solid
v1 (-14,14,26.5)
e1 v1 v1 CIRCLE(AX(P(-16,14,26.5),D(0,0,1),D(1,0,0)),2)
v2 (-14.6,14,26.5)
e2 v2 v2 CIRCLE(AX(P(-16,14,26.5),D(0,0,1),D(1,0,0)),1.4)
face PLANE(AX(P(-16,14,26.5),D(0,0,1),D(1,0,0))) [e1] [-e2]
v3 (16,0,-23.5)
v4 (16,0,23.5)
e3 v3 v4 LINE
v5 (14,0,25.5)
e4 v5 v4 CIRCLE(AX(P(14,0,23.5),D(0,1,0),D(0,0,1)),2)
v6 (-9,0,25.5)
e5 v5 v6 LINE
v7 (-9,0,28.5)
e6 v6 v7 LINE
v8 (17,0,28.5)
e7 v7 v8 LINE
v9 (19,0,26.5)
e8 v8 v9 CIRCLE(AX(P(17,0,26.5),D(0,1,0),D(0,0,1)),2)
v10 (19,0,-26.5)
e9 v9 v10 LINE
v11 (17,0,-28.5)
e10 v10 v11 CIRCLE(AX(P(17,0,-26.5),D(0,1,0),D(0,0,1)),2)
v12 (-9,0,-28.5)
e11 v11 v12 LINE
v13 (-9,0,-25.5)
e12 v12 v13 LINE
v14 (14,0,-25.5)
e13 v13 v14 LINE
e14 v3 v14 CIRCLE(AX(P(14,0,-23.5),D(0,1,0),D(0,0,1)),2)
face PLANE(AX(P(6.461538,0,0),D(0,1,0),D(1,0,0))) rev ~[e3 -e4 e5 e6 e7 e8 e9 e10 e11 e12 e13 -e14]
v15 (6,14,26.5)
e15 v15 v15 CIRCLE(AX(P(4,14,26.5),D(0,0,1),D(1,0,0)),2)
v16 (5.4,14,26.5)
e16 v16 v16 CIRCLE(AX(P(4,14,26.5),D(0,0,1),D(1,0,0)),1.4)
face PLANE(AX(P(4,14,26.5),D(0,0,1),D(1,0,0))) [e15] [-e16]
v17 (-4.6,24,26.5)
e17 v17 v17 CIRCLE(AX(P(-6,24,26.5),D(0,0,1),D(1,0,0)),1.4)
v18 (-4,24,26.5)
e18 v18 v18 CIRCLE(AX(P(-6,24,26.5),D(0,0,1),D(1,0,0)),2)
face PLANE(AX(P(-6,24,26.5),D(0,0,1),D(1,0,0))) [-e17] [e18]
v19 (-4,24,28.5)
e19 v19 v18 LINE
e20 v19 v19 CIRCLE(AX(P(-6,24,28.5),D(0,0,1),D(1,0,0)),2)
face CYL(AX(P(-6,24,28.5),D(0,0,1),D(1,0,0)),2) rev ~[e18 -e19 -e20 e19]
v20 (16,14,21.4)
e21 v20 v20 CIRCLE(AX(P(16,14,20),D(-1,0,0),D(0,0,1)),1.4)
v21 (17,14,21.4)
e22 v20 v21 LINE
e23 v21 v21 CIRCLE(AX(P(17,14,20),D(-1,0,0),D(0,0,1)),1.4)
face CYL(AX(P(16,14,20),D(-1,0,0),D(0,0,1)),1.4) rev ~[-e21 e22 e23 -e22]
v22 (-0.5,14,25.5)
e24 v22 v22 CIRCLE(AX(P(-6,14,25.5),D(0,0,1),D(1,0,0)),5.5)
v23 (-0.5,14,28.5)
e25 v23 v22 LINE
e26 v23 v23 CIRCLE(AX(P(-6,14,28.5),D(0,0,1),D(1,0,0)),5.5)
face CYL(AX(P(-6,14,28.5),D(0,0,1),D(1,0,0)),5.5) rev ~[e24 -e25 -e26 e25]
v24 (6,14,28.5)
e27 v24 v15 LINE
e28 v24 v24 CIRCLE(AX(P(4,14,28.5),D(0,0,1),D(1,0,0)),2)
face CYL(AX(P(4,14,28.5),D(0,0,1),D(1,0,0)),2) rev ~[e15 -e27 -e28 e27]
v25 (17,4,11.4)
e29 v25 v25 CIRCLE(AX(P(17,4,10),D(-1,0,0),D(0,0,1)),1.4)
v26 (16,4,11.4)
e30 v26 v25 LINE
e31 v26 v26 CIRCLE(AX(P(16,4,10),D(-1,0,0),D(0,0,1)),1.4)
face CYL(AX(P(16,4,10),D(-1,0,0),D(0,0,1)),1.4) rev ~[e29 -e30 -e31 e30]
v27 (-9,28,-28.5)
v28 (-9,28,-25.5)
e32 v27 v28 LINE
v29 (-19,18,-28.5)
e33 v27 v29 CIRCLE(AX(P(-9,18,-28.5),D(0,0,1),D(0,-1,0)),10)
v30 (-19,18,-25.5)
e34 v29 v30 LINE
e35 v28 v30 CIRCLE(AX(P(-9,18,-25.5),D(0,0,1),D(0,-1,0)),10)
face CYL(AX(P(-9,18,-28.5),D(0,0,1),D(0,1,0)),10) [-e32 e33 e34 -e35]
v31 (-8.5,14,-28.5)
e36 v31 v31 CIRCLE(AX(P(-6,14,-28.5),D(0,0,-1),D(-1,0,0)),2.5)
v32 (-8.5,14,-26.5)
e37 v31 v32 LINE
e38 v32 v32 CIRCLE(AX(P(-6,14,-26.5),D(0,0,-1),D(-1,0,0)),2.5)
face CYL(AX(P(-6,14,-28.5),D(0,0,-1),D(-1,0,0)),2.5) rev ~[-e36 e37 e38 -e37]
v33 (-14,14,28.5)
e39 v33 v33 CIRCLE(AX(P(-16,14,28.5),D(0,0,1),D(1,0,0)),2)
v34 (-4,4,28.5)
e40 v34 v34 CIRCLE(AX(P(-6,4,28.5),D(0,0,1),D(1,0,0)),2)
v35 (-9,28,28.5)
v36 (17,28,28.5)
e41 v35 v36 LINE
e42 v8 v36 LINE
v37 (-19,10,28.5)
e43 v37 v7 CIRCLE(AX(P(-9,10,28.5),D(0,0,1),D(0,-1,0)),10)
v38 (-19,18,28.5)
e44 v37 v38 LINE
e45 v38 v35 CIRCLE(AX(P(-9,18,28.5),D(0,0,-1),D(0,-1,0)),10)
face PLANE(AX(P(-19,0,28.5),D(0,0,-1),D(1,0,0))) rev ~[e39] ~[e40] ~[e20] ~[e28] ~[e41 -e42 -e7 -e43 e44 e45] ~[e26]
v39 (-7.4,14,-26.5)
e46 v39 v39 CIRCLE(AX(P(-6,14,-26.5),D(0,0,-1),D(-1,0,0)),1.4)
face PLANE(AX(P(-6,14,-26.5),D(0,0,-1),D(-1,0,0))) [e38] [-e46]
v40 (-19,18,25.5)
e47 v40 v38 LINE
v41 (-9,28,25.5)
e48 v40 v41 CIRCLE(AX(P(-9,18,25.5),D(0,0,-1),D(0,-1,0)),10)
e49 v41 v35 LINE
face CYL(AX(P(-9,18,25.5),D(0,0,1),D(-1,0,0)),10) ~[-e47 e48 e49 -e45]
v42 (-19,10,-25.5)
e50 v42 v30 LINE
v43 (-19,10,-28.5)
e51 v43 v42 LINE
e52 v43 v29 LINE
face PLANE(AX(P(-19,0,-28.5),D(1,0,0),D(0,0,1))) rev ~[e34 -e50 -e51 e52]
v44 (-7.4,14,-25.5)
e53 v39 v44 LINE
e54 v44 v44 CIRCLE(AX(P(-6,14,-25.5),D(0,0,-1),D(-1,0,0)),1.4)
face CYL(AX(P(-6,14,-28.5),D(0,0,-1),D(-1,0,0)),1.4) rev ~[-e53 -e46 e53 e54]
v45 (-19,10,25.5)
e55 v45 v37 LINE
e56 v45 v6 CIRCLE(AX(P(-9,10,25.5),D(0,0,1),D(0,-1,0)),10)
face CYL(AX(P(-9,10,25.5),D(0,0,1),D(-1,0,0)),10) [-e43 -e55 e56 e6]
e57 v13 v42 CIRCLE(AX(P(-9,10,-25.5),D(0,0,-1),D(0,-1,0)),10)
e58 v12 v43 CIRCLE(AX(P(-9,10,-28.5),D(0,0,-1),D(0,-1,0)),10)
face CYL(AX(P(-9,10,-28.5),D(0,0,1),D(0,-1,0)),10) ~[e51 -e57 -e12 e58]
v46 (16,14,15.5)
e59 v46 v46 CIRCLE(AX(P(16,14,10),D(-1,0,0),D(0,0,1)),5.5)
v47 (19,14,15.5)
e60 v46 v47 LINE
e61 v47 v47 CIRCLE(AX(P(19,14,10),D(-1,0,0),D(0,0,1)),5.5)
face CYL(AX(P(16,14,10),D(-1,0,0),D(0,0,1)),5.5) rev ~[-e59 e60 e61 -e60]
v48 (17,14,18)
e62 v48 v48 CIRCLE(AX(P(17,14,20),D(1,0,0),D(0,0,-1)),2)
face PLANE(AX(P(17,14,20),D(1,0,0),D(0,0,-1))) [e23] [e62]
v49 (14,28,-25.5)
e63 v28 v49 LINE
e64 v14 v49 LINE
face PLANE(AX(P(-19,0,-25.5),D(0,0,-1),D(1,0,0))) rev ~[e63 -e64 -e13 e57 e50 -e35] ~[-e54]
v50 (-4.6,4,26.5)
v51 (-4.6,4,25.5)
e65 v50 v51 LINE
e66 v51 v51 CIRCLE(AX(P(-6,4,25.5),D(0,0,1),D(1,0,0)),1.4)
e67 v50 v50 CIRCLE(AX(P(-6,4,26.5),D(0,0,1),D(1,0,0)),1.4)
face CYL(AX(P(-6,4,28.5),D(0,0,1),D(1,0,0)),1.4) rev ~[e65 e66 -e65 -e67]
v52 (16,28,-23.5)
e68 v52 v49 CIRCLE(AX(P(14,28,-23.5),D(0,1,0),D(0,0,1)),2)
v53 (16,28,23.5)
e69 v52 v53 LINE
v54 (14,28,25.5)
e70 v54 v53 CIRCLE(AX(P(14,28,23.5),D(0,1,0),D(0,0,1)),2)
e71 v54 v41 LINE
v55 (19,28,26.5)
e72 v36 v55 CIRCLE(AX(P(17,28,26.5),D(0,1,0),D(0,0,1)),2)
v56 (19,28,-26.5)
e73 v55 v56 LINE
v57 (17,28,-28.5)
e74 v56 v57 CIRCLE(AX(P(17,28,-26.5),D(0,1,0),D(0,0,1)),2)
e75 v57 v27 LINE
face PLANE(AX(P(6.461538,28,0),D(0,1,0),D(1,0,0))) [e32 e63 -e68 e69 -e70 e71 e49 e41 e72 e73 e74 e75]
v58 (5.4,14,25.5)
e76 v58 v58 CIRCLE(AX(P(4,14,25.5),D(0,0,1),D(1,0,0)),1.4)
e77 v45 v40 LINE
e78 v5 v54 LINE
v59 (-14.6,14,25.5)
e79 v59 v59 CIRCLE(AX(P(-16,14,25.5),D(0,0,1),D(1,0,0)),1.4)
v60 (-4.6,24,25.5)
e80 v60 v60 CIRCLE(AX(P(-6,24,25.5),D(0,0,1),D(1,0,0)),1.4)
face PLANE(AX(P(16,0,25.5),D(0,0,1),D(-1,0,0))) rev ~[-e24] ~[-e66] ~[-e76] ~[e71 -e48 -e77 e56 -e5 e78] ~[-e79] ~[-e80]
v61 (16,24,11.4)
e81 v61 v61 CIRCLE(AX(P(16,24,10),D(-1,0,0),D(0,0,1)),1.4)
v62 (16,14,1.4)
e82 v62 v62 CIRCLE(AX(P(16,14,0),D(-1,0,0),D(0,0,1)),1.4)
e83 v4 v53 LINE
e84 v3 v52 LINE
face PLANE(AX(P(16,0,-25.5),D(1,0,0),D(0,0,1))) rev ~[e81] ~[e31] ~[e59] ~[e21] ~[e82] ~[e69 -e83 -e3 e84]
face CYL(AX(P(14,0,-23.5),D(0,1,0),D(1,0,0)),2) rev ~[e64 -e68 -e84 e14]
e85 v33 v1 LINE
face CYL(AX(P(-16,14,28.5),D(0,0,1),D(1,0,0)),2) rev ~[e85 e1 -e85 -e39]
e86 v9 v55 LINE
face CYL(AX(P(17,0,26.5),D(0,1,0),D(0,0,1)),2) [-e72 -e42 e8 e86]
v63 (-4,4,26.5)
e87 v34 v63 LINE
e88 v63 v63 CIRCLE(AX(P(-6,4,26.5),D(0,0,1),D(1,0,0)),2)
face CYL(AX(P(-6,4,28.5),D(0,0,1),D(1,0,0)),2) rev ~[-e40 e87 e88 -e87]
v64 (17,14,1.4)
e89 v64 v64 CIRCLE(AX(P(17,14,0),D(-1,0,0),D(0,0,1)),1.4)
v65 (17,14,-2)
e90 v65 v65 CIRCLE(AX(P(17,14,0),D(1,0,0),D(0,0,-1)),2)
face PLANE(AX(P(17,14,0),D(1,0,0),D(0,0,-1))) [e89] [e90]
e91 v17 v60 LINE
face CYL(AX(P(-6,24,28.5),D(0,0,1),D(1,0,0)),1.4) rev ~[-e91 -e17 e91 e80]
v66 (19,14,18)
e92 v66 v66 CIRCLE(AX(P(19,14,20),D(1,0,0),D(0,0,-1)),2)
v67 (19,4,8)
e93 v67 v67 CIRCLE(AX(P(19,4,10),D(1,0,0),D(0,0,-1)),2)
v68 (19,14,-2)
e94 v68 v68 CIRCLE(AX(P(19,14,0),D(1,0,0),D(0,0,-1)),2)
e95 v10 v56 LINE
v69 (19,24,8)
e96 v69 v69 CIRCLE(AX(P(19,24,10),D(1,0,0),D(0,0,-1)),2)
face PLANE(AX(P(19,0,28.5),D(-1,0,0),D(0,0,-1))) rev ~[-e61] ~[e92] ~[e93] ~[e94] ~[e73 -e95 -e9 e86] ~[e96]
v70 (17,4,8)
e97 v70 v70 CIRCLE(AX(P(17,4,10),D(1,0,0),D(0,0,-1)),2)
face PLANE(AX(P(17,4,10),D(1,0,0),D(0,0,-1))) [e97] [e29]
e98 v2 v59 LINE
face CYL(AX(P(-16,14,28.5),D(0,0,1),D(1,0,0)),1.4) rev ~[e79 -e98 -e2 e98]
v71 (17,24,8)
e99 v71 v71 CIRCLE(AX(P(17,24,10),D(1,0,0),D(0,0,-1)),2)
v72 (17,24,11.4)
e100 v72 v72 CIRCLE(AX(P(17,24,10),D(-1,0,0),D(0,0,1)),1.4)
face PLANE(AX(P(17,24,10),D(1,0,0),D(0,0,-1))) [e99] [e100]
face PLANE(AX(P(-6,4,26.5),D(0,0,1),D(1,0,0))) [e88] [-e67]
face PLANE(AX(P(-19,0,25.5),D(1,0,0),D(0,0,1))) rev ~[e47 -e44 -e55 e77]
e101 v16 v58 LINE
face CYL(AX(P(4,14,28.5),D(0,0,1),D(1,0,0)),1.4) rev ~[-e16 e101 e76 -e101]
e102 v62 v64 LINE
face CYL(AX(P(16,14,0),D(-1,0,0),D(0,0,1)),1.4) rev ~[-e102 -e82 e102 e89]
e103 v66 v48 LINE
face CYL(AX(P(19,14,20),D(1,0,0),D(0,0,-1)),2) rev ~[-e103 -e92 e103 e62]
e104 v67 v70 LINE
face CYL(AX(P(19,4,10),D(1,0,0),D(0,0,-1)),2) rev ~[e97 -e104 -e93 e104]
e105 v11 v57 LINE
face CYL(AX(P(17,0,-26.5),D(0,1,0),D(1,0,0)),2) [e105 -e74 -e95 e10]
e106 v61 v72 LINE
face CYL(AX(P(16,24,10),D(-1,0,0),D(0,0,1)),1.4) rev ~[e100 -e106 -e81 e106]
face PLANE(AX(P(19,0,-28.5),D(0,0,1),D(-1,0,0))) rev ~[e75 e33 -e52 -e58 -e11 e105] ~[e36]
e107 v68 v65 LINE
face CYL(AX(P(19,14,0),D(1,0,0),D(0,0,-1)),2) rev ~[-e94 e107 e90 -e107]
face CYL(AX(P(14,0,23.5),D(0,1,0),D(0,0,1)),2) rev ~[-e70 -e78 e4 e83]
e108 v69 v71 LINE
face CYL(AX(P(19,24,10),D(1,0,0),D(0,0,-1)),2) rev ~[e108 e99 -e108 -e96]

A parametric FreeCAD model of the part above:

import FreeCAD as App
import Part
import Sketcher
from FreeCAD import Vector
Q = App.Units.Quantity


def edges_at(feature, points):
    """Names of the edges that pass closest to the given points."""
    edges = feature.Shape.Edges
    near = lambda p: min(range(len(edges)), key=lambda i: edges[i].distToShape(Part.Vertex(*p))[0])
    return sorted({f"Edge{near(p) + 1}" for p in points})

doc = App.newDocument("Part")
params = doc.addObject("Spreadsheet::Sheet", "Params")
for row, (alias, value) in enumerate([
    ("sketch1_width", "38 mm"),
    ("sketch1_width2", "35 mm"),
    ("sketch1_height", "57 mm"),
    ("sketch1_height2", "3 mm"),
    ("pad1_length", "28 mm"),
    ("sketch2_diameter", "11 mm"),
    ("sketch2_diameter2", "2.8 mm"),
    ("sketch3_diameter", "2.8 mm"),
    ("sketch4_diameter", "2.8 mm"),
    ("sketch5_diameter", "2.8 mm"),
    ("sketch6_diameter", "2.8 mm"),
    ("sketch7_diameter", "11 mm"),
    ("sketch8_diameter", "2.8 mm"),
    ("sketch9_diameter", "4 mm"),
    ("pocket8_length", "2 mm"),
    ("sketch10_diameter", "4 mm"),
    ("pocket9_length", "2 mm"),
    ("sketch11_diameter", "5 mm"),
    ("pocket10_length", "2 mm"),
    ("fillet_radius", "10 mm"),
    ("fillet2_radius", "2 mm"),
], start=1):
    params.set(f"A{row}", alias)
    params.set(f"B{row}", "=" + value)
    params.setAlias(f"B{row}", alias)

body = doc.addObject("PartDesign::Body", "Body")

sketch1 = body.newObject("Sketcher::SketchObject", "Sketch")
sketch1.AttachmentSupport = (doc.getObject("XZ_Plane"), [""])
sketch1.MapMode = "FlatFace"
sketch1.addGeometry([
    Part.LineSegment(Vector(-19, 28.5, 0), Vector(19, 28.5, 0)),
    Part.LineSegment(Vector(19, 28.5, 0), Vector(19, -28.5, 0)),
    Part.LineSegment(Vector(19, -28.5, 0), Vector(-19, -28.5, 0)),
    Part.LineSegment(Vector(-19, -28.5, 0), Vector(-19, -25.5, 0)),
    Part.LineSegment(Vector(-19, -25.5, 0), Vector(16, -25.5, 0)),
    Part.LineSegment(Vector(16, -25.5, 0), Vector(16, 25.5, 0)),
    Part.LineSegment(Vector(16, 25.5, 0), Vector(-19, 25.5, 0)),
    Part.LineSegment(Vector(-19, 25.5, 0), Vector(-19, 28.5, 0)),
], False)
sketch1.addConstraint([
    Sketcher.Constraint("Coincident", 0, 2, 1, 1),
    Sketcher.Constraint("Coincident", 1, 2, 2, 1),
    Sketcher.Constraint("Coincident", 2, 2, 3, 1),
    Sketcher.Constraint("Coincident", 3, 2, 4, 1),
    Sketcher.Constraint("Coincident", 4, 2, 5, 1),
    Sketcher.Constraint("Coincident", 5, 2, 6, 1),
    Sketcher.Constraint("Coincident", 6, 2, 7, 1),
    Sketcher.Constraint("Coincident", 7, 2, 0, 1),
    Sketcher.Constraint("Horizontal", 0),
    Sketcher.Constraint("Vertical", 1),
    Sketcher.Constraint("Horizontal", 2),
    Sketcher.Constraint("Vertical", 3),
    Sketcher.Constraint("Horizontal", 4),
    Sketcher.Constraint("Vertical", 5),
    Sketcher.Constraint("Horizontal", 6),
    Sketcher.Constraint("Vertical", 7),
    Sketcher.Constraint("Symmetric", 0, 2, 2, 2, -1, 1),
    Sketcher.Constraint("Symmetric", 3, 2, 6, 2, -1),
    Sketcher.Constraint("DistanceX", 0, 1, 0, 2, Q("38 mm")),
    Sketcher.Constraint("DistanceX", 4, 1, 4, 2, Q("35 mm")),
    Sketcher.Constraint("DistanceY", 1, 2, 1, 1, Q("57 mm")),
    Sketcher.Constraint("DistanceY", 3, 1, 3, 2, Q("3 mm")),
])
sketch1.setExpression("Constraints[18]", "Params.sketch1_width")
sketch1.setExpression("Constraints[19]", "Params.sketch1_width2")
sketch1.setExpression("Constraints[20]", "Params.sketch1_height")
sketch1.setExpression("Constraints[21]", "Params.sketch1_height2")
pad1 = body.newObject("PartDesign::Pad", "Pad")
pad1.Profile = sketch1
pad1.setExpression("Length", "Params.pad1_length")
pad1.Reversed = True

sketch2 = body.newObject("Sketcher::SketchObject", "Sketch001")
sketch2.AttachmentSupport = (doc.getObject("YZ_Plane"), [""])
sketch2.MapMode = "FlatFace"
sketch2.AttachmentOffset = App.Placement(Vector(0, 0, 16), App.Rotation())
sketch2.addGeometry([
    Part.Circle(Vector(4, 10, 0), Vector(0, 0, 1), 1.4),
    Part.Circle(Vector(24, 10, 0), Vector(0, 0, 1), 1.4),
    Part.Circle(Vector(14, 0, 0), Vector(0, 0, 1), 1.4),
    Part.Circle(Vector(14, 20, 0), Vector(0, 0, 1), 1.4),
    Part.Circle(Vector(14, 10, 0), Vector(0, 0, 1), 5.5),
], False)
sketch2.addConstraint([
    Sketcher.Constraint("Equal", 0, 1),
    Sketcher.Constraint("Equal", 1, 2),
    Sketcher.Constraint("Equal", 2, 3),
    Sketcher.Constraint("PointOnObject", 2, 3, -1),
    Sketcher.Constraint("Horizontal", 0, 3, 1, 3),
    Sketcher.Constraint("Horizontal", 1, 3, 4, 3),
    Sketcher.Constraint("Vertical", 2, 3, 3, 3),
    Sketcher.Constraint("Vertical", 3, 3, 4, 3),
    Sketcher.Constraint("Diameter", 4, Q("11 mm")),
    Sketcher.Constraint("Diameter", 0, Q("2.8 mm")),
    Sketcher.Constraint("DistanceX", -1, 1, 0, 3, Q("4 mm")),
    Sketcher.Constraint("DistanceY", -1, 1, 0, 3, Q("10 mm")),
    Sketcher.Constraint("DistanceX", -1, 1, 1, 3, Q("24 mm")),
    Sketcher.Constraint("DistanceX", -1, 1, 2, 3, Q("14 mm")),
    Sketcher.Constraint("DistanceY", -1, 1, 3, 3, Q("20 mm")),
])
sketch2.setExpression("Constraints[8]", "Params.sketch2_diameter")
sketch2.setExpression("Constraints[9]", "Params.sketch2_diameter2")
pocket1 = body.newObject("PartDesign::Pocket", "Pocket")
pocket1.Profile = sketch2
pocket1.Type = "ThroughAll"
pocket1.Reversed = True

sketch3 = body.newObject("Sketcher::SketchObject", "Sketch002")
sketch3.AttachmentSupport = (doc.getObject("XY_Plane"), [""])
sketch3.MapMode = "FlatFace"
sketch3.AttachmentOffset = App.Placement(Vector(0, 0, 28.5), App.Rotation())
sketch3.addGeometry(Part.Circle(Vector(-16, 14, 0), Vector(0, 0, 1), 1.4), False)
sketch3.addConstraint([
    Sketcher.Constraint("Diameter", 0, Q("2.8 mm")),
    Sketcher.Constraint("DistanceX", 0, 3, -1, 1, Q("16 mm")),
    Sketcher.Constraint("DistanceY", -1, 1, 0, 3, Q("14 mm")),
])
sketch3.setExpression("Constraints[0]", "Params.sketch3_diameter")
pocket2 = body.newObject("PartDesign::Pocket", "Pocket001")
pocket2.Profile = sketch3
pocket2.Type = "UpToFirst"

sketch4 = body.newObject("Sketcher::SketchObject", "Sketch003")
sketch4.AttachmentSupport = (doc.getObject("XY_Plane"), [""])
sketch4.MapMode = "FlatFace"
sketch4.AttachmentOffset = App.Placement(Vector(0, 0, 28.5), App.Rotation())
sketch4.addGeometry(Part.Circle(Vector(-6, 4, 0), Vector(0, 0, 1), 1.4), False)
sketch4.addConstraint([
    Sketcher.Constraint("Diameter", 0, Q("2.8 mm")),
    Sketcher.Constraint("DistanceX", 0, 3, -1, 1, Q("6 mm")),
    Sketcher.Constraint("DistanceY", -1, 1, 0, 3, Q("4 mm")),
])
sketch4.setExpression("Constraints[0]", "Params.sketch4_diameter")
pocket3 = body.newObject("PartDesign::Pocket", "Pocket002")
pocket3.Profile = sketch4
pocket3.Type = "UpToFirst"

sketch5 = body.newObject("Sketcher::SketchObject", "Sketch004")
sketch5.AttachmentSupport = (doc.getObject("XY_Plane"), [""])
sketch5.MapMode = "FlatFace"
sketch5.AttachmentOffset = App.Placement(Vector(0, 0, 28.5), App.Rotation())
sketch5.addGeometry(Part.Circle(Vector(4, 14, 0), Vector(0, 0, 1), 1.4), False)
sketch5.addConstraint([
    Sketcher.Constraint("Diameter", 0, Q("2.8 mm")),
    Sketcher.Constraint("DistanceX", -1, 1, 0, 3, Q("4 mm")),
    Sketcher.Constraint("DistanceY", -1, 1, 0, 3, Q("14 mm")),
])
sketch5.setExpression("Constraints[0]", "Params.sketch5_diameter")
pocket4 = body.newObject("PartDesign::Pocket", "Pocket003")
pocket4.Profile = sketch5
pocket4.Type = "UpToFirst"

sketch6 = body.newObject("Sketcher::SketchObject", "Sketch005")
sketch6.AttachmentSupport = (doc.getObject("XY_Plane"), [""])
sketch6.MapMode = "FlatFace"
sketch6.AttachmentOffset = App.Placement(Vector(0, 0, 28.5), App.Rotation())
sketch6.addGeometry(Part.Circle(Vector(-6, 24, 0), Vector(0, 0, 1), 1.4), False)
sketch6.addConstraint([
    Sketcher.Constraint("Diameter", 0, Q("2.8 mm")),
    Sketcher.Constraint("DistanceX", 0, 3, -1, 1, Q("6 mm")),
    Sketcher.Constraint("DistanceY", -1, 1, 0, 3, Q("24 mm")),
])
sketch6.setExpression("Constraints[0]", "Params.sketch6_diameter")
pocket5 = body.newObject("PartDesign::Pocket", "Pocket004")
pocket5.Profile = sketch6
pocket5.Type = "UpToFirst"

sketch7 = body.newObject("Sketcher::SketchObject", "Sketch006")
sketch7.AttachmentSupport = (doc.getObject("XY_Plane"), [""])
sketch7.MapMode = "FlatFace"
sketch7.AttachmentOffset = App.Placement(Vector(0, 0, 28.5), App.Rotation())
sketch7.addGeometry(Part.Circle(Vector(-6, 14, 0), Vector(0, 0, 1), 5.5), False)
sketch7.addConstraint([
    Sketcher.Constraint("Diameter", 0, Q("11 mm")),
    Sketcher.Constraint("DistanceX", 0, 3, -1, 1, Q("6 mm")),
    Sketcher.Constraint("DistanceY", -1, 1, 0, 3, Q("14 mm")),
])
sketch7.setExpression("Constraints[0]", "Params.sketch7_diameter")
pocket6 = body.newObject("PartDesign::Pocket", "Pocket005")
pocket6.Profile = sketch7
pocket6.Type = "UpToFirst"

sketch8 = body.newObject("Sketcher::SketchObject", "Sketch007")
sketch8.AttachmentSupport = (doc.getObject("XY_Plane"), [""])
sketch8.MapMode = "FlatFace"
sketch8.AttachmentOffset = App.Placement(Vector(0, 0, -28.5), App.Rotation())
sketch8.addGeometry(Part.Circle(Vector(-6, 14, 0), Vector(0, 0, 1), 1.4), False)
sketch8.addConstraint([
    Sketcher.Constraint("Diameter", 0, Q("2.8 mm")),
    Sketcher.Constraint("DistanceX", 0, 3, -1, 1, Q("6 mm")),
    Sketcher.Constraint("DistanceY", -1, 1, 0, 3, Q("14 mm")),
])
sketch8.setExpression("Constraints[0]", "Params.sketch8_diameter")
pocket7 = body.newObject("PartDesign::Pocket", "Pocket006")
pocket7.Profile = sketch8
pocket7.Type = "UpToFirst"
pocket7.Reversed = True

sketch9 = body.newObject("Sketcher::SketchObject", "Sketch008")
sketch9.AttachmentSupport = (doc.getObject("XY_Plane"), [""])
sketch9.MapMode = "FlatFace"
sketch9.AttachmentOffset = App.Placement(Vector(0, 0, 28.5), App.Rotation())
sketch9.addGeometry([
    Part.Circle(Vector(-16, 14, 0), Vector(0, 0, 1), 2),
    Part.Circle(Vector(-6, 24, 0), Vector(0, 0, 1), 2),
    Part.Circle(Vector(4, 14, 0), Vector(0, 0, 1), 2),
    Part.Circle(Vector(-6, 4, 0), Vector(0, 0, 1), 2),
], False)
sketch9.addConstraint([
    Sketcher.Constraint("Equal", 0, 1),
    Sketcher.Constraint("Equal", 1, 2),
    Sketcher.Constraint("Equal", 2, 3),
    Sketcher.Constraint("Horizontal", 0, 3, 2, 3),
    Sketcher.Constraint("Vertical", 1, 3, 3, 3),
    Sketcher.Constraint("Diameter", 0, Q("4 mm")),
    Sketcher.Constraint("DistanceX", 0, 3, -1, 1, Q("16 mm")),
    Sketcher.Constraint("DistanceY", -1, 1, 0, 3, Q("14 mm")),
    Sketcher.Constraint("DistanceX", 1, 3, -1, 1, Q("6 mm")),
    Sketcher.Constraint("DistanceY", -1, 1, 1, 3, Q("24 mm")),
    Sketcher.Constraint("DistanceX", -1, 1, 2, 3, Q("4 mm")),
    Sketcher.Constraint("DistanceY", -1, 1, 3, 3, Q("4 mm")),
])
sketch9.setExpression("Constraints[5]", "Params.sketch9_diameter")
pocket8 = body.newObject("PartDesign::Pocket", "Pocket007")
pocket8.Profile = sketch9
pocket8.setExpression("Length", "Params.pocket8_length")

sketch10 = body.newObject("Sketcher::SketchObject", "Sketch009")
sketch10.AttachmentSupport = (doc.getObject("YZ_Plane"), [""])
sketch10.MapMode = "FlatFace"
sketch10.AttachmentOffset = App.Placement(Vector(0, 0, 19), App.Rotation())
sketch10.addGeometry([
    Part.Circle(Vector(24, 10, 0), Vector(0, 0, 1), 2),
    Part.Circle(Vector(14, 0, 0), Vector(0, 0, 1), 2),
    Part.Circle(Vector(4, 10, 0), Vector(0, 0, 1), 2),
    Part.Circle(Vector(14, 20, 0), Vector(0, 0, 1), 2),
], False)
sketch10.addConstraint([
    Sketcher.Constraint("Equal", 0, 1),
    Sketcher.Constraint("Equal", 1, 2),
    Sketcher.Constraint("Equal", 2, 3),
    Sketcher.Constraint("PointOnObject", 1, 3, -1),
    Sketcher.Constraint("Horizontal", 0, 3, 2, 3),
    Sketcher.Constraint("Vertical", 1, 3, 3, 3),
    Sketcher.Constraint("Diameter", 0, Q("4 mm")),
    Sketcher.Constraint("DistanceX", -1, 1, 0, 3, Q("24 mm")),
    Sketcher.Constraint("DistanceY", -1, 1, 0, 3, Q("10 mm")),
    Sketcher.Constraint("DistanceX", -1, 1, 1, 3, Q("14 mm")),
    Sketcher.Constraint("DistanceX", -1, 1, 2, 3, Q("4 mm")),
    Sketcher.Constraint("DistanceY", -1, 1, 3, 3, Q("20 mm")),
])
sketch10.setExpression("Constraints[6]", "Params.sketch10_diameter")
pocket9 = body.newObject("PartDesign::Pocket", "Pocket008")
pocket9.Profile = sketch10
pocket9.setExpression("Length", "Params.pocket9_length")

sketch11 = body.newObject("Sketcher::SketchObject", "Sketch010")
sketch11.AttachmentSupport = (doc.getObject("XY_Plane"), [""])
sketch11.MapMode = "FlatFace"
sketch11.AttachmentOffset = App.Placement(Vector(0, 0, -28.5), App.Rotation())
sketch11.addGeometry(Part.Circle(Vector(-6, 14, 0), Vector(0, 0, 1), 2.5), False)
sketch11.addConstraint([
    Sketcher.Constraint("Diameter", 0, Q("5 mm")),
    Sketcher.Constraint("DistanceX", 0, 3, -1, 1, Q("6 mm")),
    Sketcher.Constraint("DistanceY", -1, 1, 0, 3, Q("14 mm")),
])
sketch11.setExpression("Constraints[0]", "Params.sketch11_diameter")
pocket10 = body.newObject("PartDesign::Pocket", "Pocket009")
pocket10.Profile = sketch11
pocket10.setExpression("Length", "Params.pocket10_length")
pocket10.Reversed = True
doc.recompute()

fillet = body.newObject("PartDesign::Fillet", "Fillet")
fillet.Base = (pocket10, edges_at(pocket10, [
    (-19, 0, 27),
    (-19, 28, 27),
    (-19, 28, -27),
    (-19, 0, -27),
]))
fillet.setExpression("Radius", "Params.fillet_radius")
doc.recompute()

fillet2 = body.newObject("PartDesign::Fillet", "Fillet001")
fillet2.Base = (fillet, edges_at(fillet, [
    (19, 14, -28.5),
    (19, 14, 28.5),
    (16, 14, 25.5),
    (16, 14, -25.5),
]))
fillet2.setExpression("Radius", "Params.fillet2_radius")

doc.recompute()
